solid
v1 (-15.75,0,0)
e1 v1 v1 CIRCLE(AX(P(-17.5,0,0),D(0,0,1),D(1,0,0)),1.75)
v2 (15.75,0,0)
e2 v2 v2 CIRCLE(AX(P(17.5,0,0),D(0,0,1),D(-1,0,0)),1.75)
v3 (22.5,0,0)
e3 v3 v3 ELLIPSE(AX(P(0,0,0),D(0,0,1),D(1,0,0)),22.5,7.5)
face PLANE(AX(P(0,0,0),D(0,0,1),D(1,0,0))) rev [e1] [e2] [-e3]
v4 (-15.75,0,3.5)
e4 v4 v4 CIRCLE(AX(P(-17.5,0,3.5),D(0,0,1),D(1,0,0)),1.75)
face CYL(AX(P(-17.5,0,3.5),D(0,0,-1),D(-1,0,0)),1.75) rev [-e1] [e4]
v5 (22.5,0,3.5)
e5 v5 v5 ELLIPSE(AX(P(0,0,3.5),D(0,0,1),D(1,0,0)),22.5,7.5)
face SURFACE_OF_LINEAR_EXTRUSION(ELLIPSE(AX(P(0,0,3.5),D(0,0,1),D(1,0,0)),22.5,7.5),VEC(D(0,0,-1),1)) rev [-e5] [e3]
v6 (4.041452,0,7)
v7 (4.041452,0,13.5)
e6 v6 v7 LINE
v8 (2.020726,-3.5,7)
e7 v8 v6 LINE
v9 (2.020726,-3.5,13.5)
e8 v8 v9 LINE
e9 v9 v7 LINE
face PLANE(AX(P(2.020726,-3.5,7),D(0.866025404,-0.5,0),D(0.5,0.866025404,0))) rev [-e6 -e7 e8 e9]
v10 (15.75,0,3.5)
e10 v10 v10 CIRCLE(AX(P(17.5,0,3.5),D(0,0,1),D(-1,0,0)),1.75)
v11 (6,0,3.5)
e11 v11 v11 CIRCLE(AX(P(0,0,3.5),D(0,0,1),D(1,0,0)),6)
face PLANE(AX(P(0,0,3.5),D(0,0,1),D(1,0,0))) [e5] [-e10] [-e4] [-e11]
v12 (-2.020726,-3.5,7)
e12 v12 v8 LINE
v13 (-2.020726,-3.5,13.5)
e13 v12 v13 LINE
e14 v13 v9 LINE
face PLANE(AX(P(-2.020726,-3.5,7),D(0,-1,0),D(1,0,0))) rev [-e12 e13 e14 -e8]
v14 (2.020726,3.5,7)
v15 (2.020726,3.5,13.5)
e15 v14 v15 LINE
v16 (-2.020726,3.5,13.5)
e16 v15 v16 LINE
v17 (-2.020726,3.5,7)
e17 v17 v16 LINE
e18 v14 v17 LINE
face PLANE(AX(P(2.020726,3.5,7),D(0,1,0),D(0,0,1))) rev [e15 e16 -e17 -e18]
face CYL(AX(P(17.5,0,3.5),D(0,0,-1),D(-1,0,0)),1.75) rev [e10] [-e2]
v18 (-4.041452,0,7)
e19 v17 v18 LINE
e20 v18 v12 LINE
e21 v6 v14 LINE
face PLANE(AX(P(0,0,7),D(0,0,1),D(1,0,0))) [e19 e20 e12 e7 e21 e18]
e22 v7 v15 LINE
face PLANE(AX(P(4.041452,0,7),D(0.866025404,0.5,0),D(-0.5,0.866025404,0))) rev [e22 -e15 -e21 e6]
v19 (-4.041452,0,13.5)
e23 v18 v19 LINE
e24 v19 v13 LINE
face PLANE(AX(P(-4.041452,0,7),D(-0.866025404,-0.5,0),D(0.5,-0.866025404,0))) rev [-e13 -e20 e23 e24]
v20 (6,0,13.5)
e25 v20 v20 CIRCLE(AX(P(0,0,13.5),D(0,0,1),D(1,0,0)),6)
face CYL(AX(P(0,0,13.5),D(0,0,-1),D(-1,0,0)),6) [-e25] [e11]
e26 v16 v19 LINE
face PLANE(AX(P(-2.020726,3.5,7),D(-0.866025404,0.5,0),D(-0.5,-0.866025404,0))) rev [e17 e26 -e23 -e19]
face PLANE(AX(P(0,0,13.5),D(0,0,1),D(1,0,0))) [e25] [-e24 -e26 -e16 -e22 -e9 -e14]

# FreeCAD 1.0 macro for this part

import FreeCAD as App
import Part
import Sketcher
from FreeCAD import Vector
Q = App.Units.Quantity

doc = App.newDocument("Part")
params = doc.addObject("Spreadsheet::Sheet", "Params")
for row, (alias, value) in enumerate([
    ("sketch1_diameter", "3.5 mm"),
    ("pad1_length", "3.5 mm"),
    ("sketch2_diameter", "12 mm"),
    ("pad2_length", "10 mm"),
    ("pocket1_length", "6.5 mm"),
], start=1):
    params.set(f"A{row}", alias)
    params.set(f"B{row}", "=" + value)
    params.setAlias(f"B{row}", alias)

body = doc.addObject("PartDesign::Body", "Body")

# Sketch on XY plane
sketch1 = body.newObject("Sketcher::SketchObject", "Sketch")
sketch1.AttachmentSupport = (doc.getObject("XY_Plane"), [""])
sketch1.MapMode = "FlatFace"
sketch1.addGeometry(Part.Ellipse(Vector(22.5, 0, 0), Vector(0, 7.5, 0), Vector(0, 0, 0)), False)
sketch1.addGeometry(Part.Circle(Vector(-17.5, 0, 0), Vector(0, 0, 1), 1.75), False)
sketch1.addGeometry(Part.Circle(Vector(17.5, 0, 0), Vector(0, 0, 1), 1.75), False)
sketch1.addConstraint(Sketcher.Constraint("Block", 0))
sketch1.addConstraint(Sketcher.Constraint("Equal", 1, 2))
sketch1.addConstraint(Sketcher.Constraint("Symmetric", 1, 3, 2, 3, -1, 1))
sketch1.addConstraint(Sketcher.Constraint("PointOnObject", 1, 3, -1))
sketch1.addConstraint(Sketcher.Constraint("Diameter", 1, Q("3.5 mm")))
sketch1.addConstraint(Sketcher.Constraint("DistanceX", 1, 3, 2, 3, Q("35 mm")))
sketch1.setExpression("Constraints[4]", "Params.sketch1_diameter")
pad1 = body.newObject("PartDesign::Pad", "Pad")
pad1.Profile = sketch1
pad1.setExpression("Length", "Params.pad1_length")

# Sketch on XY plane
sketch2 = body.newObject("Sketcher::SketchObject", "Sketch001")
sketch2.AttachmentSupport = (doc.getObject("XY_Plane"), [""])
sketch2.MapMode = "FlatFace"
sketch2.AttachmentOffset = App.Placement(Vector(0, 0, 3.5), App.Rotation())
sketch2.addGeometry(Part.Circle(Vector(0, 0, 0), Vector(0, 0, 1), 6), False)
sketch2.addConstraint(Sketcher.Constraint("Coincident", 0, 3, -1, 1))
sketch2.addConstraint(Sketcher.Constraint("Diameter", 0, Q("12 mm")))
sketch2.setExpression("Constraints[1]", "Params.sketch2_diameter")
pad2 = body.newObject("PartDesign::Pad", "Pad001")
pad2.Profile = sketch2
pad2.setExpression("Length", "Params.pad2_length")

# Sketch on XY plane
sketch3 = body.newObject("Sketcher::SketchObject", "Sketch002")
sketch3.AttachmentSupport = (doc.getObject("XY_Plane"), [""])
sketch3.MapMode = "FlatFace"
sketch3.AttachmentOffset = App.Placement(Vector(0, 0, 13.5), App.Rotation())
sketch3.addGeometry(Part.LineSegment(Vector(2, -3.5, 0), Vector(4, 0, 0)), False)
sketch3.addGeometry(Part.LineSegment(Vector(4, 0, 0), Vector(2, 3.5, 0)), False)
sketch3.addGeometry(Part.LineSegment(Vector(2, 3.5, 0), Vector(-2, 3.5, 0)), False)
sketch3.addGeometry(Part.LineSegment(Vector(-2, 3.5, 0), Vector(-4, 0, 0)), False)
sketch3.addGeometry(Part.LineSegment(Vector(-4, 0, 0), Vector(-2, -3.5, 0)), False)
sketch3.addGeometry(Part.LineSegment(Vector(-2, -3.5, 0), Vector(2, -3.5, 0)), False)
sketch3.addConstraint(Sketcher.Constraint("Coincident", 0, 2, 1, 1))
sketch3.addConstraint(Sketcher.Constraint("Coincident", 1, 2, 2, 1))
sketch3.addConstraint(Sketcher.Constraint("Coincident", 2, 2, 3, 1))
sketch3.addConstraint(Sketcher.Constraint("Coincident", 3, 2, 4, 1))
sketch3.addConstraint(Sketcher.Constraint("Coincident", 4, 2, 5, 1))
sketch3.addConstraint(Sketcher.Constraint("Coincident", 5, 2, 0, 1))
sketch3.addConstraint(Sketcher.Constraint("Horizontal", 2))
sketch3.addConstraint(Sketcher.Constraint("Horizontal", 5))
sketch3.addConstraint(Sketcher.Constraint("Symmetric", 0, 2, 3, 2, -1, 1))
sketch3.addConstraint(Sketcher.Constraint("Symmetric", 1, 2, 4, 2, -1, 1))
sketch3.addConstraint(Sketcher.Constraint("PointOnObject", 0, 2, -1))
sketch3.addConstraint(Sketcher.Constraint("Parallel", 0, 3))
sketch3.addConstraint(Sketcher.Constraint("Vertical", 2, 2, 4, 2))
sketch3.addConstraint(Sketcher.Constraint("Angle", 0, Q("60 deg")))
sketch3.addConstraint(Sketcher.Constraint("DistanceY", 4, 2, 2, 2, Q("7 mm")))
sketch3.addConstraint(Sketcher.Constraint("DistanceX", 2, 2, 2, 1, Q("4.041452 mm")))
pocket1 = body.newObject("PartDesign::Pocket", "Pocket")
pocket1.Profile = sketch3
pocket1.setExpression("Length", "Params.pocket1_length")

doc.recompute()
